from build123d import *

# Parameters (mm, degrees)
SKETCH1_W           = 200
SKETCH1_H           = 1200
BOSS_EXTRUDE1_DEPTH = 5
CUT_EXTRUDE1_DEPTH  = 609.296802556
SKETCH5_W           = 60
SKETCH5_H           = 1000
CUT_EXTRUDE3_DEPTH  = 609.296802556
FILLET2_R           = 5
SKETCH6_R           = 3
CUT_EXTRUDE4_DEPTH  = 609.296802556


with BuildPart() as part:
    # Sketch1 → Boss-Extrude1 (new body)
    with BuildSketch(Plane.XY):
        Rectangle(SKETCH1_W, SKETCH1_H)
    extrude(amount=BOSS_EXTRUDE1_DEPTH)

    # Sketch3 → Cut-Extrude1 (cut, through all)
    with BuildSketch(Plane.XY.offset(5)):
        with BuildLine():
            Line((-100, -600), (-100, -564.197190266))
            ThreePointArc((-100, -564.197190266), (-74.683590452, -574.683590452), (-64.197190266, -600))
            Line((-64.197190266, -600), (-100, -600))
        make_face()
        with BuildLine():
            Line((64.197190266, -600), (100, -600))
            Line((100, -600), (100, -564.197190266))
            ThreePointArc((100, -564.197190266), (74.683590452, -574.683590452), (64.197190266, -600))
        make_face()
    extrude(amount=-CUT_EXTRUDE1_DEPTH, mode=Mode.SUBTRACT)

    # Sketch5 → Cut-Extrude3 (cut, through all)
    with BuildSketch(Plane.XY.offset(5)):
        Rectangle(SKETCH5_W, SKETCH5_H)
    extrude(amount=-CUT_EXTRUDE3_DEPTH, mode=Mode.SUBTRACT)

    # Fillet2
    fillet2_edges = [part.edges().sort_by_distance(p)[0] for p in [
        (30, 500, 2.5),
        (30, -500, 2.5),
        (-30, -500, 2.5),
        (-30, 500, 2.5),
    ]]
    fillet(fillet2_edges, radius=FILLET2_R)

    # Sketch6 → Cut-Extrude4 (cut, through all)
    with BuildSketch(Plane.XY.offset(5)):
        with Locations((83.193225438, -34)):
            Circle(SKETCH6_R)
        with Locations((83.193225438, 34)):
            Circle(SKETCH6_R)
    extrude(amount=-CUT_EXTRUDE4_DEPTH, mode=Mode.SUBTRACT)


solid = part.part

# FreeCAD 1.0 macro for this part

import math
import FreeCAD as App
import Part
import Sketcher

V = App.Vector


def edges_at(feature, points):
    """Names of the edges that pass closest to the given points."""
    edges = feature.Shape.Edges
    near = lambda p: min(range(len(edges)), key=lambda i: edges[i].distToShape(Part.Vertex(*p))[0])
    return sorted({f"Edge{near(p) + 1}" for p in points})


def add_polygon(sketch, points):
    """Adds a closed chain of lines whose ends are joined by coincident constraints."""
    first, n = sketch.GeometryCount, len(points)
    for a, b in zip(points, points[1:] + points[:1]):
        sketch.addGeometry(Part.LineSegment(App.Vector(*a, 0), App.Vector(*b, 0)), False)
    for i in range(n):
        sketch.addConstraint(Sketcher.Constraint("Coincident", first + i, 2, first + (i + 1) % n, 1))

doc = App.newDocument("Part")
body = doc.addObject("PartDesign::Body", "Body")

sketch1 = body.newObject("Sketcher::SketchObject", "Sketch")
sketch1.AttachmentSupport = (doc.getObject("XY_Plane"), [""])
sketch1.MapMode = "FlatFace"
add_polygon(sketch1, [(-100, 600), (-100, -600), (100, -600), (100, 600)])
sketch1.addConstraint([
    Sketcher.Constraint("Vertical", 0),
    Sketcher.Constraint("Horizontal", 1),
    Sketcher.Constraint("Vertical", 2),
    Sketcher.Constraint("Horizontal", 3),
    Sketcher.Constraint("Symmetric", 0, 2, 2, 2, -1, 1),
    Sketcher.Constraint("DistanceX", 1, 1, 1, 2, 200.0),
    Sketcher.Constraint("DistanceY", 0, 2, 0, 1, 1200.0),
])
pad1 = body.newObject("PartDesign::Pad", "Pad")
pad1.Profile = sketch1
pad1.Length = 5

sketch2 = body.newObject("Sketcher::SketchObject", "Sketch001")
sketch2.AttachmentSupport = (doc.getObject("XY_Plane"), [""])
sketch2.MapMode = "FlatFace"
sketch2.AttachmentOffset = App.Placement(V(0, 0, 5), App.Rotation())
sketch2.addGeometry([
    Part.LineSegment(V(-100, -564.19719, 0), V(-100, -600, 0)),
    Part.LineSegment(V(-100, -600, 0), V(-64.19719, -600, 0)),
    Part.ArcOfCircle(Part.Circle(V(-100, -600, 0), V(0, 0, 1), 35.80281), math.radians(0), math.radians(90)),
    Part.LineSegment(V(64.19719, -600, 0), V(100, -600, 0)),
    Part.LineSegment(V(100, -600, 0), V(100, -564.19719, 0)),
    Part.ArcOfCircle(Part.Circle(V(100, -600, 0), V(0, 0, 1), 35.80281), math.radians(90), math.radians(180)),
], False)
sketch2.addConstraint([
    Sketcher.Constraint("Coincident", 0, 2, 1, 1),
    Sketcher.Constraint("Coincident", 1, 2, 2, 1),
    Sketcher.Constraint("Coincident", 2, 2, 0, 1),
    Sketcher.Constraint("Coincident", 3, 2, 4, 1),
    Sketcher.Constraint("Coincident", 4, 2, 5, 1),
    Sketcher.Constraint("Coincident", 5, 2, 3, 1),
    Sketcher.Constraint("Vertical", 0),
    Sketcher.Constraint("Horizontal", 1),
    Sketcher.Constraint("Horizontal", 3),
    Sketcher.Constraint("Vertical", 4),
    Sketcher.Constraint("Coincident", 0, 2, 2, 3),
    Sketcher.Constraint("Coincident", 3, 2, 5, 3),
    Sketcher.Constraint("Equal", 2, 5),
    Sketcher.Constraint("Symmetric", 2, 3, 5, 3, -2),
    Sketcher.Constraint("DistanceX", 2, 3, -1, 1, 100.0),
    Sketcher.Constraint("DistanceY", 2, 3, -1, 1, 600.0),
    Sketcher.Constraint("Radius", 2, 35.80281),
])
pocket1 = body.newObject("PartDesign::Pocket", "Pocket")
pocket1.Profile = sketch2
pocket1.Type = "ThroughAll"

sketch3 = body.newObject("Sketcher::SketchObject", "Sketch002")
sketch3.AttachmentSupport = (doc.getObject("XY_Plane"), [""])
sketch3.MapMode = "FlatFace"
sketch3.AttachmentOffset = App.Placement(V(0, 0, 5), App.Rotation())
add_polygon(sketch3, [(-30, 500), (-30, -500), (30, -500), (30, 500)])
sketch3.addConstraint([
    Sketcher.Constraint("Vertical", 0),
    Sketcher.Constraint("Horizontal", 1),
    Sketcher.Constraint("Vertical", 2),
    Sketcher.Constraint("Horizontal", 3),
    Sketcher.Constraint("Symmetric", 0, 2, 2, 2, -1, 1),
    Sketcher.Constraint("DistanceX", 1, 1, 1, 2, 60.0),
    Sketcher.Constraint("DistanceY", 0, 2, 0, 1, 1000.0),
])
pocket2 = body.newObject("PartDesign::Pocket", "Pocket001")
pocket2.Profile = sketch3
pocket2.Type = "ThroughAll"
doc.recompute()

fillet = body.newObject("PartDesign::Fillet", "Fillet")
fillet.Base = (pocket2, edges_at(pocket2, [
    (30, 500, 2.5),
    (30, -500, 2.5),
    (-30, -500, 2.5),
    (-30, 500, 2.5),
]))
fillet.Radius = 5

sketch4 = body.newObject("Sketcher::SketchObject", "Sketch003")
sketch4.AttachmentSupport = (doc.getObject("XY_Plane"), [""])
sketch4.MapMode = "FlatFace"
sketch4.AttachmentOffset = App.Placement(V(0, 0, 5), App.Rotation())
sketch4.addGeometry([
    Part.Circle(V(83.193225, -34, 0), V(0, 0, 1), 3),
    Part.Circle(V(83.193225, 34, 0), V(0, 0, 1), 3),
], False)
sketch4.addConstraint([
    Sketcher.Constraint("Equal", 0, 1),
    Sketcher.Constraint("Symmetric", 0, 3, 1, 3, -1),
    Sketcher.Constraint("Diameter", 0, 6.0),
    Sketcher.Constraint("DistanceY", 0, 3, -1, 1, 34.0),
    Sketcher.Constraint("DistanceX", -1, 1, 0, 3, 83.193225),
])
pocket3 = body.newObject("PartDesign::Pocket", "Pocket002")
pocket3.Profile = sketch4
pocket3.Type = "ThroughAll"

doc.recompute()
